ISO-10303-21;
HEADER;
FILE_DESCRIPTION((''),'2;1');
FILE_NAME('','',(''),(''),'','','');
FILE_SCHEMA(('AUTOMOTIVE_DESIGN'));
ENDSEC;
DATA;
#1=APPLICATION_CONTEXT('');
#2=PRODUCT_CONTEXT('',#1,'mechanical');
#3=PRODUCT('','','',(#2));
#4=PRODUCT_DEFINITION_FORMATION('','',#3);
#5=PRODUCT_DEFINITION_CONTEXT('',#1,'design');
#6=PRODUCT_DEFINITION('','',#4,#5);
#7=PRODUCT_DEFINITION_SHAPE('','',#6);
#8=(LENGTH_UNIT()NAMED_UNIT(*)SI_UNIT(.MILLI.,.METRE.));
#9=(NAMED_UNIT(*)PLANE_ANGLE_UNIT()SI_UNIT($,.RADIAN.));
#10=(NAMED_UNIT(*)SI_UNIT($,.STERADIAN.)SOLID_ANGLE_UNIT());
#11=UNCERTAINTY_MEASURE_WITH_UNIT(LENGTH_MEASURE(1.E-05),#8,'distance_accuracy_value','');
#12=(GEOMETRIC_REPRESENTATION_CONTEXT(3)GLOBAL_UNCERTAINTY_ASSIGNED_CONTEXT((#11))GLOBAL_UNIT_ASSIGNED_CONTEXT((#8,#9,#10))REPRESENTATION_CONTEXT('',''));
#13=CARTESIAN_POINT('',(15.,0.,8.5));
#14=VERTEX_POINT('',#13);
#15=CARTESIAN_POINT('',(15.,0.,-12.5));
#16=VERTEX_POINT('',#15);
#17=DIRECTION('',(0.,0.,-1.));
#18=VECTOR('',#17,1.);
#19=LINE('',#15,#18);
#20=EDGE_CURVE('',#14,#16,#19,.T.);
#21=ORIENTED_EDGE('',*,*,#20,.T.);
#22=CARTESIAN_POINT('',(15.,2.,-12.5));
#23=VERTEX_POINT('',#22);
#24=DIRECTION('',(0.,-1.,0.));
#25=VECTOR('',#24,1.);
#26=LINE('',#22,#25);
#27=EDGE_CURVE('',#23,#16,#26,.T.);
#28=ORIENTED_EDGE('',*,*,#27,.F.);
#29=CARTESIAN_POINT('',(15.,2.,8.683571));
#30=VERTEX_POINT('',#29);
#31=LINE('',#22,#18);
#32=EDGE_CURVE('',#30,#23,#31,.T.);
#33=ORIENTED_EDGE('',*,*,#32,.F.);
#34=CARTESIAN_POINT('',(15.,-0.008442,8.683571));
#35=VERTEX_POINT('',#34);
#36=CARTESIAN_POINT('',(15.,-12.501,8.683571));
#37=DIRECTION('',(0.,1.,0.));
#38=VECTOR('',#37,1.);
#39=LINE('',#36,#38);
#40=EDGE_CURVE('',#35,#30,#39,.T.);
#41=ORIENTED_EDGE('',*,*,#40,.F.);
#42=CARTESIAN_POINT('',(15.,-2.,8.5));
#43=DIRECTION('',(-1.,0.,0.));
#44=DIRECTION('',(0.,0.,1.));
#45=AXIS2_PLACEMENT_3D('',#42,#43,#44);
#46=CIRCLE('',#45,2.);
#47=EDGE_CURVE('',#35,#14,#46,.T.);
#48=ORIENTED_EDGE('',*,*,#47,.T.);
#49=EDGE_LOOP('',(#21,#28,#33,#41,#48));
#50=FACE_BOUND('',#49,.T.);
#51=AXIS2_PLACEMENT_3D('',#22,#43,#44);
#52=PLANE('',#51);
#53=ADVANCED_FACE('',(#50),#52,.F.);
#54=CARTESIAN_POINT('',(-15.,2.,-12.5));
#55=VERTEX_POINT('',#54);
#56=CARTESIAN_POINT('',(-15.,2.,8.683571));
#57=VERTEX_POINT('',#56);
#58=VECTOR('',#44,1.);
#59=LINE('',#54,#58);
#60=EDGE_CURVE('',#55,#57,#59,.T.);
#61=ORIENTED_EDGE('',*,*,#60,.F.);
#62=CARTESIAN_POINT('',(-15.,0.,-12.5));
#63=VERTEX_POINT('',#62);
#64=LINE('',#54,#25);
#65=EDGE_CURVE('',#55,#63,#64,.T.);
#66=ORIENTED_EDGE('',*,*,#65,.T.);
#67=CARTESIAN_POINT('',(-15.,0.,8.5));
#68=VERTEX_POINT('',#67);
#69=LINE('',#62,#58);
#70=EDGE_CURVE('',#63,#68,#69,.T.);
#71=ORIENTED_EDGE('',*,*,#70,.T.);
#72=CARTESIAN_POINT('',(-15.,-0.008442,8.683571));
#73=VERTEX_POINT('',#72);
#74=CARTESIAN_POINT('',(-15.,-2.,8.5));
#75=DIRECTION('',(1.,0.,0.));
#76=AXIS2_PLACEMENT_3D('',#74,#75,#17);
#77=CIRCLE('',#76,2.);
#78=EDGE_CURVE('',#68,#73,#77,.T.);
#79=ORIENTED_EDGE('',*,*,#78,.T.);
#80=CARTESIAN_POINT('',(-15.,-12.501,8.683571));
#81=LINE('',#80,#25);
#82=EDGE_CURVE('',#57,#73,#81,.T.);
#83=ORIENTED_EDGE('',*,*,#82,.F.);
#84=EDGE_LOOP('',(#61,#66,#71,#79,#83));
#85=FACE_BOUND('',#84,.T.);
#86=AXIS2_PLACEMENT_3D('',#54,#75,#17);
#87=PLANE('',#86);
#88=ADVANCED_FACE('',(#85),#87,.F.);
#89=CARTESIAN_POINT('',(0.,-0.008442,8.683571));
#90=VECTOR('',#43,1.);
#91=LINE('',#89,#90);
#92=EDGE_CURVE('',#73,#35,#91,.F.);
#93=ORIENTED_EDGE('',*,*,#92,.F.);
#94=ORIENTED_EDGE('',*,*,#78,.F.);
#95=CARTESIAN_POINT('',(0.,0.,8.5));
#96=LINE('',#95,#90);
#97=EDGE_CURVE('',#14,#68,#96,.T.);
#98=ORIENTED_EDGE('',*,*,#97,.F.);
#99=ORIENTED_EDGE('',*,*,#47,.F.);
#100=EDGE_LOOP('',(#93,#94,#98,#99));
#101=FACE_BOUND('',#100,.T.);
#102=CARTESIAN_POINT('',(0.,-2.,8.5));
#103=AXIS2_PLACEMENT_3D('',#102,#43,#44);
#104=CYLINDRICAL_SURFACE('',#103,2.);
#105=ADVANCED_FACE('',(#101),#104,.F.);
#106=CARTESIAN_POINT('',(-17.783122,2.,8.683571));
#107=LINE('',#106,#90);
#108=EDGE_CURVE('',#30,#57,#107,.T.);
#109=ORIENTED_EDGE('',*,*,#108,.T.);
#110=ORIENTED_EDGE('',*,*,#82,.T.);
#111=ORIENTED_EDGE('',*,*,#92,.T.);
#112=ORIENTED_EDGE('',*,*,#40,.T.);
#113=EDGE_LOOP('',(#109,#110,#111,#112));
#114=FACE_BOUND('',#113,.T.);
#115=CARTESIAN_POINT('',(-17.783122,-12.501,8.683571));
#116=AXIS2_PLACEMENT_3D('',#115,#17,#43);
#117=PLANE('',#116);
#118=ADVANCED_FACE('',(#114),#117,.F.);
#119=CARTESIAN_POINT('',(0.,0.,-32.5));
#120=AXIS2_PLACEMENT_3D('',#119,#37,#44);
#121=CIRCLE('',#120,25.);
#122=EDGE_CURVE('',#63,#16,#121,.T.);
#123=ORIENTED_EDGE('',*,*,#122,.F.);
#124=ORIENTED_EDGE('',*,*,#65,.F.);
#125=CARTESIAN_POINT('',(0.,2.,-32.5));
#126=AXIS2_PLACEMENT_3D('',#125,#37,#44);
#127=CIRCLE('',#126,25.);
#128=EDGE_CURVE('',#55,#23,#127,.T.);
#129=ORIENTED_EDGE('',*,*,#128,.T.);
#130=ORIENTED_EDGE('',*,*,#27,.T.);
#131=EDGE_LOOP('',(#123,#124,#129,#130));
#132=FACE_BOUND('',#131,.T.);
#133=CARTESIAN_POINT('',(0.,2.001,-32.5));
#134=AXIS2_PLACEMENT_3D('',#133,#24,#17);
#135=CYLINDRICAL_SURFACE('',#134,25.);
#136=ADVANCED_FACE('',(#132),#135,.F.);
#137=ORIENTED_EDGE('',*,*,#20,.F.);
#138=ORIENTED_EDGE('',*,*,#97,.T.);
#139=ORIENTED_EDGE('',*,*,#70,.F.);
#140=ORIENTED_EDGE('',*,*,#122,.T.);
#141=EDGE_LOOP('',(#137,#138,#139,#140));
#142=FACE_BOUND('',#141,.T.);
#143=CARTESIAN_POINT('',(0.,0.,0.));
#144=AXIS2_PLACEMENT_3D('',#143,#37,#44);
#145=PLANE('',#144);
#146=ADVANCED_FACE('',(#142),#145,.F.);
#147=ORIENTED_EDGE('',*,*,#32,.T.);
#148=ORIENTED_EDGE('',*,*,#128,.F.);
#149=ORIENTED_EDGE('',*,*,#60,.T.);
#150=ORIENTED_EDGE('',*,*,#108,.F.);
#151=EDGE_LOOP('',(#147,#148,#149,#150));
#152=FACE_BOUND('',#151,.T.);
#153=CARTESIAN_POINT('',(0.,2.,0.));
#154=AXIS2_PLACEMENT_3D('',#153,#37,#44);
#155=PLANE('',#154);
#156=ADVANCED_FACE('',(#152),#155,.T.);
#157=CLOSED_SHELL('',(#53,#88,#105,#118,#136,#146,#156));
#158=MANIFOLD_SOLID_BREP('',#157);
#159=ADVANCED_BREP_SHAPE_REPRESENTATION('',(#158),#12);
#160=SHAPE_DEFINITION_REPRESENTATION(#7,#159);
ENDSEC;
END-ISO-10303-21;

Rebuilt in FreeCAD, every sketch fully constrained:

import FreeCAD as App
import Part
import Sketcher
from FreeCAD import Vector
Q = App.Units.Quantity


def edges_at(feature, points):
    """Names of the edges that pass closest to the given points."""
    edges = feature.Shape.Edges
    near = lambda p: min(range(len(edges)), key=lambda i: edges[i].distToShape(Part.Vertex(*p))[0])
    return sorted({f"Edge{near(p) + 1}" for p in points})

doc = App.newDocument("Part")
body = doc.addObject("PartDesign::Body", "Body")

sketch1 = doc.addObject("Sketcher::SketchObject", "Sketch")
body.addObject(sketch1)
sketch1.AttachmentSupport = (doc.XZ_Plane, [""])
sketch1.MapMode = "FlatFace"
sketch1.addGeometry([
    Part.LineSegment(Vector(-15, -12, 0), Vector(-15, 12, 0)),
    Part.LineSegment(Vector(-15, 12, 0), Vector(15, 12, 0)),
    Part.LineSegment(Vector(15, 12, 0), Vector(15, -12, 0)),
    Part.LineSegment(Vector(15, -12, 0), Vector(-15, -12, 0)),
], False)
sketch1.addConstraint([
    Sketcher.Constraint("Coincident", 0, 2, 1, 1),
    Sketcher.Constraint("Coincident", 1, 2, 2, 1),
    Sketcher.Constraint("Coincident", 2, 2, 3, 1),
    Sketcher.Constraint("Coincident", 3, 2, 0, 1),
    Sketcher.Constraint("Vertical", 0),
    Sketcher.Constraint("Horizontal", 1),
    Sketcher.Constraint("Vertical", 2),
    Sketcher.Constraint("Horizontal", 3),
    Sketcher.Constraint("Symmetric", 0, 2, 2, 2, -1, 1),
    Sketcher.Constraint("DistanceX", 1, 1, 1, 2, Q("30 mm")),
    Sketcher.Constraint("DistanceY", 0, 1, 0, 2, Q("25 mm")),
])
pad1 = doc.addObject("PartDesign::Pad", "Pad")
body.addObject(pad1)
pad1.Profile = sketch1
pad1.Length = 2
pad1.Reversed = True

sketch2 = doc.addObject("Sketcher::SketchObject", "Sketch001")
body.addObject(sketch2)
sketch2.AttachmentSupport = (doc.XZ_Plane, [""])
sketch2.MapMode = "FlatFace"
sketch2.addGeometry([
    Part.LineSegment(Vector(-15, 10.5, 0), Vector(-15, 12.5, 0)),
    Part.LineSegment(Vector(-15, 12.5, 0), Vector(15, 12.5, 0)),
    Part.LineSegment(Vector(15, 12.5, 0), Vector(15, 10.5, 0)),
    Part.LineSegment(Vector(15, 10.5, 0), Vector(-15, 10.5, 0)),
], False)
sketch2.addConstraint([
    Sketcher.Constraint("Coincident", 0, 2, 1, 1),
    Sketcher.Constraint("Coincident", 1, 2, 2, 1),
    Sketcher.Constraint("Coincident", 2, 2, 3, 1),
    Sketcher.Constraint("Coincident", 3, 2, 0, 1),
    Sketcher.Constraint("Vertical", 0),
    Sketcher.Constraint("Horizontal", 1),
    Sketcher.Constraint("Vertical", 2),
    Sketcher.Constraint("Horizontal", 3),
    Sketcher.Constraint("DistanceX", 1, 1, 1, 2, Q("30 mm")),
    Sketcher.Constraint("DistanceY", 0, 1, 0, 2, Q("2 mm")),
    Sketcher.Constraint("DistanceX", 0, 2, -1, 1, Q("15 mm")),
    Sketcher.Constraint("DistanceY", -1, 1, 0, 2, Q("12.5 mm")),
])
pad2 = doc.addObject("PartDesign::Pad", "Pad001")
body.addObject(pad2)
pad2.Profile = sketch2
pad2.Length = 12.5

sketch3 = doc.addObject("Sketcher::SketchObject", "Sketch002")
body.addObject(sketch3)
sketch3.AttachmentSupport = (doc.XZ_Plane, [""])
sketch3.MapMode = "FlatFace"
sketch3.addGeometry(Part.Circle(Vector(0, -32, 0), Vector(0, 0, 1), 25), False)
sketch3.addConstraint([
    Sketcher.Constraint("PointOnObject", 0, 3, -2),
    Sketcher.Constraint("Diameter", 0, Q("50 mm")),
    Sketcher.Constraint("DistanceY", 0, 3, -1, 1, Q("32.5 mm")),
])
pocket1 = doc.addObject("PartDesign::Pocket", "Pocket")
body.addObject(pocket1)
pocket1.Profile = sketch3
pocket1.Length = 2
doc.recompute()

fillet = doc.addObject("PartDesign::Fillet", "Fillet")
body.addObject(fillet)
fillet.Base = (pocket1, edges_at(pocket1, [(0, 0, 10.5)]))
fillet.Radius = 2

sketch4 = doc.addObject("Sketcher::SketchObject", "Sketch003")
body.addObject(sketch4)
sketch4.AttachmentSupport = (doc.XZ_Plane, [""])
sketch4.MapMode = "FlatFace"
sketch4.AttachmentOffset = App.Placement(Vector(0, 0, -2), App.Rotation())
sketch4.addGeometry([
    Part.LineSegment(Vector(-18, 9, 0), Vector(-18, 26, 0)),
    Part.LineSegment(Vector(-18, 26, 0), Vector(18, 26, 0)),
    Part.LineSegment(Vector(18, 26, 0), Vector(18, 9, 0)),
    Part.LineSegment(Vector(18, 9, 0), Vector(-18, 9, 0)),
], False)
sketch4.addConstraint([
    Sketcher.Constraint("Coincident", 0, 2, 1, 1),
    Sketcher.Constraint("Coincident", 1, 2, 2, 1),
    Sketcher.Constraint("Coincident", 2, 2, 3, 1),
    Sketcher.Constraint("Coincident", 3, 2, 0, 1),
    Sketcher.Constraint("Vertical", 0),
    Sketcher.Constraint("Horizontal", 1),
    Sketcher.Constraint("Vertical", 2),
    Sketcher.Constraint("Horizontal", 3),
    Sketcher.Constraint("DistanceX", 1, 1, 1, 2, Q("35.566243 mm")),
    Sketcher.Constraint("DistanceY", 0, 1, 0, 2, Q("17.679127 mm")),
    Sketcher.Constraint("DistanceX", 0, 2, -1, 1, Q("17.783122 mm")),
    Sketcher.Constraint("DistanceY", -1, 1, 2, 2, Q("8.683571 mm")),
])
pocket2 = doc.addObject("PartDesign::Pocket", "Pocket001")
body.addObject(pocket2)
pocket2.Profile = sketch4
pocket2.Length = 14.5
pocket2.Reversed = True

doc.recompute()
